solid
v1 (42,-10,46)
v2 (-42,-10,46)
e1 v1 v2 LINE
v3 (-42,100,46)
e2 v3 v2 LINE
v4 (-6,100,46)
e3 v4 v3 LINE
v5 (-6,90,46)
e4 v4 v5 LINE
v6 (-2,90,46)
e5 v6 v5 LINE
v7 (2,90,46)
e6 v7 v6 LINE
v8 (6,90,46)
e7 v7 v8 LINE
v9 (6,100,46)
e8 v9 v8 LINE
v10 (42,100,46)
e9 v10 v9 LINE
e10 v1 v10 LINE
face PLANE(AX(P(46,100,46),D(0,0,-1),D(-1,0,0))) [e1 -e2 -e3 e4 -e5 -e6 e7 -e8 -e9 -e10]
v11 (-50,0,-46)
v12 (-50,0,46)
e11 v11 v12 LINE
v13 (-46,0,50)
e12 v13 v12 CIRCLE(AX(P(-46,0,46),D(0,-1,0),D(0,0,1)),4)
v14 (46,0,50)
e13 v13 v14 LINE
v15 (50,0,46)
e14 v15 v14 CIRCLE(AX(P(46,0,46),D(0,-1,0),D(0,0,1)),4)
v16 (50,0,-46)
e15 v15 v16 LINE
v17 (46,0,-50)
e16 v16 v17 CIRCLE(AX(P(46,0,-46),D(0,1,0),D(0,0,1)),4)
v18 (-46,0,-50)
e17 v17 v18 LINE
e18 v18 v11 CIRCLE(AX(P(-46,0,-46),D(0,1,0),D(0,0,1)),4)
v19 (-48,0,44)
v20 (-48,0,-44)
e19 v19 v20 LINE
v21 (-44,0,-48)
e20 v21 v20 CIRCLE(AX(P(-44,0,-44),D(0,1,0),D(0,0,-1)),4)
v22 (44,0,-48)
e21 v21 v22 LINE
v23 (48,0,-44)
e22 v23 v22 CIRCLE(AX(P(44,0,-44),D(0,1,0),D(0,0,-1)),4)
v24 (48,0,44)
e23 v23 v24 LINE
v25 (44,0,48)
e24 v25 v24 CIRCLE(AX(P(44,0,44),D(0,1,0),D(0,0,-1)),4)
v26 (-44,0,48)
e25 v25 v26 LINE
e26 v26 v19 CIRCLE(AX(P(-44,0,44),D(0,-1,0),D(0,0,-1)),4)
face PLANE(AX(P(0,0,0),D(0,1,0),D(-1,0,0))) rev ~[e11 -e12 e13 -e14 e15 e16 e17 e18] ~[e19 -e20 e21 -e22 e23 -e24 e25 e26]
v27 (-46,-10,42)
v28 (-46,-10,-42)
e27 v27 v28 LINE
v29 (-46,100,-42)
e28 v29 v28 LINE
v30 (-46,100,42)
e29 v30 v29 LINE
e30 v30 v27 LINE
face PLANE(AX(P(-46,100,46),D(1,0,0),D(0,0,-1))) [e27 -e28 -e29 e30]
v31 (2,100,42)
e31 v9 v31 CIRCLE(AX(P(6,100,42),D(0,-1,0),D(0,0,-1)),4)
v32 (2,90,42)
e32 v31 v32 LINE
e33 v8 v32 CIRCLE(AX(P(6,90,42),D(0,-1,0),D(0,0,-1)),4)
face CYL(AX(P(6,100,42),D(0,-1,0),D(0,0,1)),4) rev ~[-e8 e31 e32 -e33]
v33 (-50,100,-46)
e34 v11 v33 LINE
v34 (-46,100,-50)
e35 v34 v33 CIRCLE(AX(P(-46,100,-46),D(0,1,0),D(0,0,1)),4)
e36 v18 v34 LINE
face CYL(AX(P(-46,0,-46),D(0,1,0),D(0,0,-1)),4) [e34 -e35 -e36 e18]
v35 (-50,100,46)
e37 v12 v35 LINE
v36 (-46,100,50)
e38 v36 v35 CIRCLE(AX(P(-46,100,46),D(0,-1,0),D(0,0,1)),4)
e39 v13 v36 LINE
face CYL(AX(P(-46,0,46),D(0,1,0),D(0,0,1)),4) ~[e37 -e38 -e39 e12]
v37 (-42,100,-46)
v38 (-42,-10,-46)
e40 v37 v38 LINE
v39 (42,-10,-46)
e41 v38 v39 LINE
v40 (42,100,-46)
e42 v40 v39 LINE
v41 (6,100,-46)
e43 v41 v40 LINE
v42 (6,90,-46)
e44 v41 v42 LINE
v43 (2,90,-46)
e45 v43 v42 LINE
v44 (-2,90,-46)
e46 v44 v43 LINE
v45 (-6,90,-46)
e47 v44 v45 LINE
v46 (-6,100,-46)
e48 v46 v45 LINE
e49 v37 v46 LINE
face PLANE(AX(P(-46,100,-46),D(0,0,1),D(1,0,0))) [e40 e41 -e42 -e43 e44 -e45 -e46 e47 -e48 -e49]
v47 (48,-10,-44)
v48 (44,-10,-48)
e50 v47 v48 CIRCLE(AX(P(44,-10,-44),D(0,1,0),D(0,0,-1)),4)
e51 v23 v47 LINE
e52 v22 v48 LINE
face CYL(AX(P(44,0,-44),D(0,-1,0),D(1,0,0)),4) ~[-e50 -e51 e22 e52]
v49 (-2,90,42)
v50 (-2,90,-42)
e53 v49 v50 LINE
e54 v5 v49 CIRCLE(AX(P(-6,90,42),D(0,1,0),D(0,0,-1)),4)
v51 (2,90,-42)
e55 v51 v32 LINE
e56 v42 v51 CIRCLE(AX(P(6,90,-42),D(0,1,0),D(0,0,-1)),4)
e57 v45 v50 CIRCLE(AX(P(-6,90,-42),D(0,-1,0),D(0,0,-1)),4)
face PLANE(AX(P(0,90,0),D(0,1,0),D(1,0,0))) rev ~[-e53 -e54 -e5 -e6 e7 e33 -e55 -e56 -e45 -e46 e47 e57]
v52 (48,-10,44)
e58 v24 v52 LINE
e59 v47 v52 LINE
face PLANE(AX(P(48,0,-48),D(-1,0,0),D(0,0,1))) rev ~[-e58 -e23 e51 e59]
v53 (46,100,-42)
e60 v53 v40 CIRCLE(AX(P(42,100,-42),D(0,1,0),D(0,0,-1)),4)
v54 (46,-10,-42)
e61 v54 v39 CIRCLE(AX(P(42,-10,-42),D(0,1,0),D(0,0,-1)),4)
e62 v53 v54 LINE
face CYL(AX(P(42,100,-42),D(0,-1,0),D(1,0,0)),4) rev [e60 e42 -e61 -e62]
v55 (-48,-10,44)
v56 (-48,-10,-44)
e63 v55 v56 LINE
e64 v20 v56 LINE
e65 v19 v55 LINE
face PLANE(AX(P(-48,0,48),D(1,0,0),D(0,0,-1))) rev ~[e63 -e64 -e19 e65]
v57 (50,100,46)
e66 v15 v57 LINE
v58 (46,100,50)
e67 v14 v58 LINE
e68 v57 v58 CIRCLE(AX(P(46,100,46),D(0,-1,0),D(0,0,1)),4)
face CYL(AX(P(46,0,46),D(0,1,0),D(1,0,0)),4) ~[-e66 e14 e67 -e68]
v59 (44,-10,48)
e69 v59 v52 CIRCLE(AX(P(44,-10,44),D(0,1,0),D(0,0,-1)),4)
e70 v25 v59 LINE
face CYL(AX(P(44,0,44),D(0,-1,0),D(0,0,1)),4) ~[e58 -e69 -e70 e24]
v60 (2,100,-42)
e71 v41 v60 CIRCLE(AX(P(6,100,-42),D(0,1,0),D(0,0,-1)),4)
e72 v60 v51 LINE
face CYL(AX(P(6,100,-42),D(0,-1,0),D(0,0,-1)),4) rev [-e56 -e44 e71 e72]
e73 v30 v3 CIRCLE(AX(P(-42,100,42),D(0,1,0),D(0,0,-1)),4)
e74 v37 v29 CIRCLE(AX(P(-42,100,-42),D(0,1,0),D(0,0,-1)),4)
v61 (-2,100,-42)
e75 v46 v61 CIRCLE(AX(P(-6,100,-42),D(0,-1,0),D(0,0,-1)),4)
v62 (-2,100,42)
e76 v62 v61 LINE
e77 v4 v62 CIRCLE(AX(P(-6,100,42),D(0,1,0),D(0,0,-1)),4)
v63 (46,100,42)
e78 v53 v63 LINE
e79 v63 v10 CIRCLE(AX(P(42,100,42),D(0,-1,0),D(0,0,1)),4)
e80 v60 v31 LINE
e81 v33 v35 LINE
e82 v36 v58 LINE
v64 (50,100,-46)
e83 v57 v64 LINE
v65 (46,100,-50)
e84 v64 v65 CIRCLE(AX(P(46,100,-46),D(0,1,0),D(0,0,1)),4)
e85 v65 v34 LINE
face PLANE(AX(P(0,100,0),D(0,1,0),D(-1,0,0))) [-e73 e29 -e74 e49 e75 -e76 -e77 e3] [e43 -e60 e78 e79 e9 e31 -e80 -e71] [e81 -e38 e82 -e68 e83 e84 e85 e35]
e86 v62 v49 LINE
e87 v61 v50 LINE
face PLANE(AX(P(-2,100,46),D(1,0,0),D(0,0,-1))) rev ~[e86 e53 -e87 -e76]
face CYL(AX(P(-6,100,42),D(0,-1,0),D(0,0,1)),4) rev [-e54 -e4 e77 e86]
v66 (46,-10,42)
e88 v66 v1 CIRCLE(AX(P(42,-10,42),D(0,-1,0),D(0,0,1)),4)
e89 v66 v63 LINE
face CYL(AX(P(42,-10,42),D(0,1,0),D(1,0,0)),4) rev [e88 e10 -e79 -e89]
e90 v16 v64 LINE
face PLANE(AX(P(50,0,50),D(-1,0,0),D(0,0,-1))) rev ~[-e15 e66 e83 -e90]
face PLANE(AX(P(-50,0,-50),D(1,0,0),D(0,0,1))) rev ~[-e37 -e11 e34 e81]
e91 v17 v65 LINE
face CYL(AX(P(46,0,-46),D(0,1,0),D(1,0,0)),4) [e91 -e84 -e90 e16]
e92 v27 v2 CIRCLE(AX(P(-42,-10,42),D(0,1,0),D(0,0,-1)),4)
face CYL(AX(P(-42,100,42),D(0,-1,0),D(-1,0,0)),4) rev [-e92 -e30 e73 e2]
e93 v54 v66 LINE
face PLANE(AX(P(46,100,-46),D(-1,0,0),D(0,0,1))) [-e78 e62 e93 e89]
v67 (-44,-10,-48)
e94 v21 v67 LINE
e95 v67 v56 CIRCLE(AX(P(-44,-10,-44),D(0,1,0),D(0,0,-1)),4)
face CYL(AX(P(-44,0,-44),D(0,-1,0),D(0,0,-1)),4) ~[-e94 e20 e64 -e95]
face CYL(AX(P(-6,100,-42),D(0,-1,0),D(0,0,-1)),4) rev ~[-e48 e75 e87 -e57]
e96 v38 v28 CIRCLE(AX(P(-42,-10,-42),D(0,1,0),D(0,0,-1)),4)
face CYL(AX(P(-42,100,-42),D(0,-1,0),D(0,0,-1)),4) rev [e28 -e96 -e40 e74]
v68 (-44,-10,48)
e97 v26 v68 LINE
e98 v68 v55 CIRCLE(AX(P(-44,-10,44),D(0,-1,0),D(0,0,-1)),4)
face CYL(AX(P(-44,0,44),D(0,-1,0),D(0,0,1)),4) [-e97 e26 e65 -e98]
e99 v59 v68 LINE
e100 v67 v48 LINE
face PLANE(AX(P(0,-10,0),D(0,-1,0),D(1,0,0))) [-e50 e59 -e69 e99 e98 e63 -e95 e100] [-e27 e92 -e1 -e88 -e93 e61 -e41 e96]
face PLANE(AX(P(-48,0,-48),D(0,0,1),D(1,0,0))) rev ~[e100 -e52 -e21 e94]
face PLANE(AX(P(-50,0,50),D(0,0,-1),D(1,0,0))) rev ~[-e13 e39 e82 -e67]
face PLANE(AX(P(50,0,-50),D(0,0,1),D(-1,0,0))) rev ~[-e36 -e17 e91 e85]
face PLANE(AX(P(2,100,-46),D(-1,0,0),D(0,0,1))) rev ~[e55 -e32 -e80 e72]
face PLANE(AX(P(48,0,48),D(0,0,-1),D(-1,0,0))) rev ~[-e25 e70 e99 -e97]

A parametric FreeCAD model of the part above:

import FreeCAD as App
import Part
import Sketcher
Q = App.Units.Quantity


def edges_at(feature, points):
    """Names of the edges that pass closest to the given points."""
    edges = feature.Shape.Edges
    near = lambda p: min(range(len(edges)), key=lambda i: edges[i].distToShape(Part.Vertex(*p))[0])
    return sorted({f"Edge{near(p) + 1}" for p in points})

doc = App.newDocument("Part")
params = doc.addObject("Spreadsheet::Sheet", "Params")
for row, (alias, value) in enumerate([
    ("sketch1_width", "100 mm"),
    ("pad1_length", "100 mm"),
    ("sketch2_width", "92 mm"),
    ("pocket1_length", "100 mm"),
    ("sketch3_width", "96 mm"),
    ("pad2_length", "10 mm"),
    ("sketch4_width", "92 mm"),
    ("pocket2_length", "10 mm"),
    ("sketch5_width", "4 mm"),
    ("sketch5_height", "92 mm"),
    ("pad3_length", "10 mm"),
    ("fillet_radius", "4 mm"),
], start=1):
    params.set(f"A{row}", alias)
    params.set(f"B{row}", "=" + value)
    params.setAlias(f"B{row}", alias)

body = doc.addObject("PartDesign::Body", "Body")

# Sketch on XZ plane
sketch1 = body.newObject("Sketcher::SketchObject", "Sketch")
sketch1.AttachmentSupport = (doc.getObject("XZ_Plane"), [""])
sketch1.MapMode = "FlatFace"
sketch1.addGeometry([
    Part.LineSegment(App.Vector(50, 50, 0), App.Vector(50, -50, 0)),
    Part.LineSegment(App.Vector(50, -50, 0), App.Vector(-50, -50, 0)),
    Part.LineSegment(App.Vector(-50, -50, 0), App.Vector(-50, 50, 0)),
    Part.LineSegment(App.Vector(-50, 50, 0), App.Vector(50, 50, 0)),
], False)
sketch1.addConstraint([
    Sketcher.Constraint("Coincident", 0, 2, 1, 1),
    Sketcher.Constraint("Coincident", 1, 2, 2, 1),
    Sketcher.Constraint("Coincident", 2, 2, 3, 1),
    Sketcher.Constraint("Coincident", 3, 2, 0, 1),
    Sketcher.Constraint("Vertical", 0),
    Sketcher.Constraint("Horizontal", 1),
    Sketcher.Constraint("Vertical", 2),
    Sketcher.Constraint("Horizontal", 3),
    Sketcher.Constraint("Symmetric", 0, 2, 2, 2, -1, 1),
    Sketcher.Constraint("Equal", 3, 0),
    Sketcher.Constraint("DistanceX", 1, 2, 1, 1, Q("100 mm")),
])
sketch1.setExpression("Constraints[10]", "Params.sketch1_width")
pad1 = body.newObject("PartDesign::Pad", "Pad")
pad1.Profile = sketch1
pad1.setExpression("Length", "Params.pad1_length")
pad1.Reversed = True

# Sketch on XZ plane
sketch2 = body.newObject("Sketcher::SketchObject", "Sketch001")
sketch2.AttachmentSupport = (doc.getObject("XZ_Plane"), [""])
sketch2.MapMode = "FlatFace"
sketch2.AttachmentOffset = App.Placement(App.Vector(0, 0, -100), App.Rotation())
sketch2.addGeometry([
    Part.LineSegment(App.Vector(-46, 46, 0), App.Vector(46, 46, 0)),
    Part.LineSegment(App.Vector(46, 46, 0), App.Vector(46, -46, 0)),
    Part.LineSegment(App.Vector(46, -46, 0), App.Vector(-46, -46, 0)),
    Part.LineSegment(App.Vector(-46, -46, 0), App.Vector(-46, 46, 0)),
], False)
sketch2.addConstraint([
    Sketcher.Constraint("Coincident", 0, 2, 1, 1),
    Sketcher.Constraint("Coincident", 1, 2, 2, 1),
    Sketcher.Constraint("Coincident", 2, 2, 3, 1),
    Sketcher.Constraint("Coincident", 3, 2, 0, 1),
    Sketcher.Constraint("Horizontal", 0),
    Sketcher.Constraint("Vertical", 1),
    Sketcher.Constraint("Horizontal", 2),
    Sketcher.Constraint("Vertical", 3),
    Sketcher.Constraint("Symmetric", 0, 2, 2, 2, -1, 1),
    Sketcher.Constraint("Equal", 2, 1),
    Sketcher.Constraint("DistanceX", 0, 1, 0, 2, Q("92 mm")),
])
sketch2.setExpression("Constraints[10]", "Params.sketch2_width")
pocket1 = body.newObject("PartDesign::Pocket", "Pocket")
pocket1.Profile = sketch2
pocket1.setExpression("Length", "Params.pocket1_length")
pocket1.Reversed = True

# Sketch on XZ plane
sketch3 = body.newObject("Sketcher::SketchObject", "Sketch002")
sketch3.AttachmentSupport = (doc.getObject("XZ_Plane"), [""])
sketch3.MapMode = "FlatFace"
sketch3.addGeometry([
    Part.LineSegment(App.Vector(-48, 48, 0), App.Vector(-48, -48, 0)),
    Part.LineSegment(App.Vector(-48, -48, 0), App.Vector(48, -48, 0)),
    Part.LineSegment(App.Vector(48, -48, 0), App.Vector(48, 48, 0)),
    Part.LineSegment(App.Vector(48, 48, 0), App.Vector(-48, 48, 0)),
], False)
sketch3.addConstraint([
    Sketcher.Constraint("Coincident", 0, 2, 1, 1),
    Sketcher.Constraint("Coincident", 1, 2, 2, 1),
    Sketcher.Constraint("Coincident", 2, 2, 3, 1),
    Sketcher.Constraint("Coincident", 3, 2, 0, 1),
    Sketcher.Constraint("Vertical", 0),
    Sketcher.Constraint("Horizontal", 1),
    Sketcher.Constraint("Vertical", 2),
    Sketcher.Constraint("Horizontal", 3),
    Sketcher.Constraint("Symmetric", 0, 2, 2, 2, -1, 1),
    Sketcher.Constraint("Equal", 3, 0),
    Sketcher.Constraint("DistanceX", 1, 1, 1, 2, Q("96 mm")),
])
sketch3.setExpression("Constraints[10]", "Params.sketch3_width")
pad2 = body.newObject("PartDesign::Pad", "Pad001")
pad2.Profile = sketch3
pad2.setExpression("Length", "Params.pad2_length")

# Sketch on XZ plane
sketch4 = body.newObject("Sketcher::SketchObject", "Sketch003")
sketch4.AttachmentSupport = (doc.getObject("XZ_Plane"), [""])
sketch4.MapMode = "FlatFace"
sketch4.AttachmentOffset = App.Placement(App.Vector(0, 0, 10), App.Rotation())
sketch4.addGeometry([
    Part.LineSegment(App.Vector(46, -46, 0), App.Vector(46, 46, 0)),
    Part.LineSegment(App.Vector(46, 46, 0), App.Vector(-46, 46, 0)),
    Part.LineSegment(App.Vector(-46, 46, 0), App.Vector(-46, -46, 0)),
    Part.LineSegment(App.Vector(-46, -46, 0), App.Vector(46, -46, 0)),
], False)
sketch4.addConstraint([
    Sketcher.Constraint("Coincident", 0, 2, 1, 1),
    Sketcher.Constraint("Coincident", 1, 2, 2, 1),
    Sketcher.Constraint("Coincident", 2, 2, 3, 1),
    Sketcher.Constraint("Coincident", 3, 2, 0, 1),
    Sketcher.Constraint("Vertical", 0),
    Sketcher.Constraint("Horizontal", 1),
    Sketcher.Constraint("Vertical", 2),
    Sketcher.Constraint("Horizontal", 3),
    Sketcher.Constraint("Symmetric", 0, 2, 2, 2, -1, 1),
    Sketcher.Constraint("Equal", 3, 0),
    Sketcher.Constraint("DistanceX", 1, 2, 1, 1, Q("92 mm")),
])
sketch4.setExpression("Constraints[10]", "Params.sketch4_width")
pocket2 = body.newObject("PartDesign::Pocket", "Pocket001")
pocket2.Profile = sketch4
pocket2.setExpression("Length", "Params.pocket2_length")

# Sketch on XZ plane
sketch5 = body.newObject("Sketcher::SketchObject", "Sketch004")
sketch5.AttachmentSupport = (doc.getObject("XZ_Plane"), [""])
sketch5.MapMode = "FlatFace"
sketch5.AttachmentOffset = App.Placement(App.Vector(0, 0, -100), App.Rotation())
sketch5.addGeometry([
    Part.LineSegment(App.Vector(2, -46, 0), App.Vector(-2, -46, 0)),
    Part.LineSegment(App.Vector(-2, -46, 0), App.Vector(-2, 46, 0)),
    Part.LineSegment(App.Vector(-2, 46, 0), App.Vector(2, 46, 0)),
    Part.LineSegment(App.Vector(2, 46, 0), App.Vector(2, -46, 0)),
], False)
sketch5.addConstraint([
    Sketcher.Constraint("Coincident", 0, 2, 1, 1),
    Sketcher.Constraint("Coincident", 1, 2, 2, 1),
    Sketcher.Constraint("Coincident", 2, 2, 3, 1),
    Sketcher.Constraint("Coincident", 3, 2, 0, 1),
    Sketcher.Constraint("Horizontal", 0),
    Sketcher.Constraint("Vertical", 1),
    Sketcher.Constraint("Horizontal", 2),
    Sketcher.Constraint("Vertical", 3),
    Sketcher.Constraint("Symmetric", 0, 2, 2, 2, -1, 1),
    Sketcher.Constraint("DistanceX", 0, 2, 0, 1, Q("4 mm")),
    Sketcher.Constraint("DistanceY", 1, 1, 1, 2, Q("92 mm")),
])
sketch5.setExpression("Constraints[9]", "Params.sketch5_width")
sketch5.setExpression("Constraints[10]", "Params.sketch5_height")
pad3 = body.newObject("PartDesign::Pad", "Pad002")
pad3.Profile = sketch5
pad3.setExpression("Length", "Params.pad3_length")
doc.recompute()

fillet = body.newObject("PartDesign::Fillet", "Fillet")
fillet.Base = (pad3, edges_at(pad3, [
    (2, 95, 46),
    (2, 95, -46),
    (-2, 95, -46),
    (-2, 95, 46),
    (50, 50, 50),
    (-50, 50, 50),
    (-50, 50, -50),
    (50, 50, -50),
    (46, 45, -46),
    (46, 45, 46),
    (-46, 45, 46),
    (-46, 45, -46),
    (-48, -5, 48),
    (48, -5, 48),
    (48, -5, -48),
    (-48, -5, -48),
]))
fillet.setExpression("Radius", "Params.fillet_radius")

doc.recompute()
